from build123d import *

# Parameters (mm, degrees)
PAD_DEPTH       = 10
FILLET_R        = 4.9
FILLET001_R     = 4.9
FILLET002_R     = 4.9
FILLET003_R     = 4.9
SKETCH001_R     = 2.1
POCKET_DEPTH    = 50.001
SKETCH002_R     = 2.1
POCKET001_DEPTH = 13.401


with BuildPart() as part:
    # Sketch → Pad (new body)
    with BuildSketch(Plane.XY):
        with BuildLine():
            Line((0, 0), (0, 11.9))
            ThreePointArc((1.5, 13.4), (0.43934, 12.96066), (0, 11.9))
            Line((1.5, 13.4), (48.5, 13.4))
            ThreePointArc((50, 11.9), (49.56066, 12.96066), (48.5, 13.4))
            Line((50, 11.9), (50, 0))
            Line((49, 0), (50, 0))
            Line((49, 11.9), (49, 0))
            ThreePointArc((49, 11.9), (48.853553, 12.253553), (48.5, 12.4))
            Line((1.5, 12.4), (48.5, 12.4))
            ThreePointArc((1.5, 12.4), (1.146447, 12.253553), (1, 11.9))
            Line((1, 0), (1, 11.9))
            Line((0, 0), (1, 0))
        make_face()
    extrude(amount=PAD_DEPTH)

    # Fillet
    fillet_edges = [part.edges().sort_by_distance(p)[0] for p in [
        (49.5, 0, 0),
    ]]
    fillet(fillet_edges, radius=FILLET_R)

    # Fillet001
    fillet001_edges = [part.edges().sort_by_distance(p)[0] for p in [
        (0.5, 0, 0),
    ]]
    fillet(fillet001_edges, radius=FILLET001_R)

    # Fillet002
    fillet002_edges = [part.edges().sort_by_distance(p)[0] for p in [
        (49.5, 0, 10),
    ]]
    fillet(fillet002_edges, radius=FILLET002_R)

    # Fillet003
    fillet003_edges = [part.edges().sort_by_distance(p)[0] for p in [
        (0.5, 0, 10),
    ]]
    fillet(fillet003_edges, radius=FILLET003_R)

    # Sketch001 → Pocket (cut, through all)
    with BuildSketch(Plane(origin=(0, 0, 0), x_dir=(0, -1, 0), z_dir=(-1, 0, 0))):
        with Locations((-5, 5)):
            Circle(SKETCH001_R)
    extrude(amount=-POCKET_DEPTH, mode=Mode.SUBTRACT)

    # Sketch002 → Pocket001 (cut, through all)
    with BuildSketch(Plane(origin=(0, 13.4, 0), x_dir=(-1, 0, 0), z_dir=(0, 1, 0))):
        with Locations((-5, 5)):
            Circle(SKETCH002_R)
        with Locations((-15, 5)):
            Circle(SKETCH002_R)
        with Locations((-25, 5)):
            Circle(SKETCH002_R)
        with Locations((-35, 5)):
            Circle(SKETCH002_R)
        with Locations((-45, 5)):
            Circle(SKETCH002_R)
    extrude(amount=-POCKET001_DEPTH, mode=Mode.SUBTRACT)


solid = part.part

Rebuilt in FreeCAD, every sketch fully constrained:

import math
import FreeCAD as App
import Part
import Sketcher


def edges_at(feature, points):
    """Names of the edges that pass closest to the given points."""
    edges = feature.Shape.Edges
    near = lambda p: min(range(len(edges)), key=lambda i: edges[i].distToShape(Part.Vertex(*p))[0])
    return sorted({f"Edge{near(p) + 1}" for p in points})

doc = App.newDocument("Part")
body = doc.addObject("PartDesign::Body", "Body")

# Sketch on XY plane
sketch1 = doc.addObject("Sketcher::SketchObject", "Sketch")
body.addObject(sketch1)
sketch1.AttachmentSupport = (doc.XY_Plane, [""])
sketch1.MapMode = "FlatFace"
sketch1.addGeometry(Part.LineSegment(App.Vector(0, 11.9, 0), App.Vector(0, 0, 0)), False)
sketch1.addGeometry(Part.LineSegment(App.Vector(0, 0, 0), App.Vector(1, 0, 0)), False)
sketch1.addGeometry(Part.LineSegment(App.Vector(1, 0, 0), App.Vector(1, 11.9, 0)), False)
sketch1.addGeometry(Part.ArcOfCircle(Part.Circle(App.Vector(1.5, 11.9, 0), App.Vector(0, 0, 1), 0.5), math.radians(90), math.radians(180)), False)
sketch1.addGeometry(Part.LineSegment(App.Vector(1.5, 12.4, 0), App.Vector(48.5, 12.4, 0)), False)
sketch1.addGeometry(Part.ArcOfCircle(Part.Circle(App.Vector(48.5, 11.9, 0), App.Vector(0, 0, 1), 0.5), math.radians(0), math.radians(90)), False)
sketch1.addGeometry(Part.LineSegment(App.Vector(49, 11.9, 0), App.Vector(49, 0, 0)), False)
sketch1.addGeometry(Part.LineSegment(App.Vector(49, 0, 0), App.Vector(50, 0, 0)), False)
sketch1.addGeometry(Part.LineSegment(App.Vector(50, 0, 0), App.Vector(50, 11.9, 0)), False)
sketch1.addGeometry(Part.ArcOfCircle(Part.Circle(App.Vector(48.5, 11.9, 0), App.Vector(0, 0, 1), 1.5), math.radians(0), math.radians(90)), False)
sketch1.addGeometry(Part.LineSegment(App.Vector(48.5, 13.4, 0), App.Vector(1.5, 13.4, 0)), False)
sketch1.addGeometry(Part.ArcOfCircle(Part.Circle(App.Vector(1.5, 11.9, 0), App.Vector(0, 0, 1), 1.5), math.radians(90), math.radians(180)), False)
sketch1.addConstraint(Sketcher.Constraint("Coincident", 0, 2, 1, 1))
sketch1.addConstraint(Sketcher.Constraint("Coincident", 1, 2, 2, 1))
sketch1.addConstraint(Sketcher.Constraint("Coincident", 2, 2, 3, 2))
sketch1.addConstraint(Sketcher.Constraint("Coincident", 3, 1, 4, 1))
sketch1.addConstraint(Sketcher.Constraint("Coincident", 4, 2, 5, 2))
sketch1.addConstraint(Sketcher.Constraint("Coincident", 5, 1, 6, 1))
sketch1.addConstraint(Sketcher.Constraint("Coincident", 6, 2, 7, 1))
sketch1.addConstraint(Sketcher.Constraint("Coincident", 7, 2, 8, 1))
sketch1.addConstraint(Sketcher.Constraint("Tangent", 8, 2, 9, 1))
sketch1.addConstraint(Sketcher.Constraint("Tangent", 9, 2, 10, 1))
sketch1.addConstraint(Sketcher.Constraint("Tangent", 10, 2, 11, 1))
sketch1.addConstraint(Sketcher.Constraint("Tangent", 11, 2, 0, 1))
sketch1.addConstraint(Sketcher.Constraint("Vertical", 0))
sketch1.addConstraint(Sketcher.Constraint("Horizontal", 1))
sketch1.addConstraint(Sketcher.Constraint("Vertical", 2))
sketch1.addConstraint(Sketcher.Constraint("Horizontal", 4))
sketch1.addConstraint(Sketcher.Constraint("Vertical", 6))
sketch1.addConstraint(Sketcher.Constraint("Horizontal", 7))
sketch1.addConstraint(Sketcher.Constraint("Vertical", 8))
sketch1.addConstraint(Sketcher.Constraint("Horizontal", 10))
sketch1.addConstraint(Sketcher.Constraint("Coincident", 0, 2, -1, 1))
sketch1.addConstraint(Sketcher.Constraint("Coincident", 9, 3, 5, 3))
sketch1.addConstraint(Sketcher.Constraint("Coincident", 11, 3, 3, 3))
sketch1.addConstraint(Sketcher.Constraint("Equal", 3, 5))
sketch1.addConstraint(Sketcher.Constraint("PointOnObject", 6, 2, -1))
sketch1.addConstraint(Sketcher.Constraint("Horizontal", 11, 3, 2, 2))
sketch1.addConstraint(Sketcher.Constraint("Horizontal", 2, 2, 5, 1))
sketch1.addConstraint(Sketcher.Constraint("Vertical", 11, 3, 3, 1))
sketch1.addConstraint(Sketcher.Constraint("Vertical", 9, 3, 4, 2))
sketch1.addConstraint(Sketcher.Constraint("Radius", 3, 0.500001))
sketch1.addConstraint(Sketcher.Constraint("Radius", 9, 1.500001))
sketch1.addConstraint(Sketcher.Constraint("DistanceX", 4, 1, 4, 2, 47.0))
sketch1.addConstraint(Sketcher.Constraint("DistanceY", 0, 2, 0, 1, 11.9))
pad1 = doc.addObject("PartDesign::Pad", "Pad")
body.addObject(pad1)
pad1.Profile = sketch1
pad1.Length = 10
doc.recompute()

fillet = doc.addObject("PartDesign::Fillet", "Fillet")
body.addObject(fillet)
fillet.Base = (pad1, edges_at(pad1, [(49.5, 0, 0)]))
fillet.Radius = 4.9
doc.recompute()

fillet2 = doc.addObject("PartDesign::Fillet", "Fillet001")
body.addObject(fillet2)
fillet2.Base = (fillet, edges_at(fillet, [(0.5, 0, 0)]))
fillet2.Radius = 4.9
doc.recompute()

fillet3 = doc.addObject("PartDesign::Fillet", "Fillet002")
body.addObject(fillet3)
fillet3.Base = (fillet2, edges_at(fillet2, [(49.5, 0, 10)]))
fillet3.Radius = 4.9
doc.recompute()

fillet4 = doc.addObject("PartDesign::Fillet", "Fillet003")
body.addObject(fillet4)
fillet4.Base = (fillet3, edges_at(fillet3, [(0.5, 0, 10)]))
fillet4.Radius = 4.9

# Sketch on YZ plane
sketch2 = doc.addObject("Sketcher::SketchObject", "Sketch001")
body.addObject(sketch2)
sketch2.AttachmentSupport = (doc.YZ_Plane, [""])
sketch2.MapMode = "FlatFace"
sketch2.addGeometry(Part.Circle(App.Vector(5, 5, 0), App.Vector(0, 0, 1), 2.1), False)
sketch2.addConstraint(Sketcher.Constraint("Diameter", 0, 4.2))
sketch2.addConstraint(Sketcher.Constraint("DistanceX", -1, 1, 0, 3, 5.0))
sketch2.addConstraint(Sketcher.Constraint("DistanceY", -1, 1, 0, 3, 5.0))
pocket1 = doc.addObject("PartDesign::Pocket", "Pocket")
body.addObject(pocket1)
pocket1.Profile = sketch2
pocket1.Type = "ThroughAll"
pocket1.Reversed = True

# Sketch on XZ plane
sketch3 = doc.addObject("Sketcher::SketchObject", "Sketch002")
body.addObject(sketch3)
sketch3.AttachmentSupport = (doc.XZ_Plane, [""])
sketch3.MapMode = "FlatFace"
sketch3.AttachmentOffset = App.Placement(App.Vector(0, 0, -13.4), App.Rotation())
sketch3.addGeometry(Part.Circle(App.Vector(5, 5, 0), App.Vector(0, 0, 1), 2.1), False)
sketch3.addGeometry(Part.Circle(App.Vector(15, 5, 0), App.Vector(0, 0, 1), 2.1), False)
sketch3.addGeometry(Part.Circle(App.Vector(25, 5, 0), App.Vector(0, 0, 1), 2.1), False)
sketch3.addGeometry(Part.Circle(App.Vector(35, 5, 0), App.Vector(0, 0, 1), 2.1), False)
sketch3.addGeometry(Part.Circle(App.Vector(45, 5, 0), App.Vector(0, 0, 1), 2.1), False)
sketch3.addConstraint(Sketcher.Constraint("Equal", 0, 1))
sketch3.addConstraint(Sketcher.Constraint("Equal", 1, 2))
sketch3.addConstraint(Sketcher.Constraint("Equal", 2, 3))
sketch3.addConstraint(Sketcher.Constraint("Equal", 3, 4))
sketch3.addConstraint(Sketcher.Constraint("Horizontal", 0, 3, 1, 3))
sketch3.addConstraint(Sketcher.Constraint("Horizontal", 1, 3, 2, 3))
sketch3.addConstraint(Sketcher.Constraint("Horizontal", 2, 3, 3, 3))
sketch3.addConstraint(Sketcher.Constraint("Horizontal", 3, 3, 4, 3))
sketch3.addConstraint(Sketcher.Constraint("Diameter", 0, 4.2))
sketch3.addConstraint(Sketcher.Constraint("DistanceX", -1, 1, 0, 3, 5.0))
sketch3.addConstraint(Sketcher.Constraint("DistanceY", -1, 1, 0, 3, 5.0))
sketch3.addConstraint(Sketcher.Constraint("DistanceX", -1, 1, 1, 3, 15.0))
sketch3.addConstraint(Sketcher.Constraint("DistanceX", -1, 1, 2, 3, 25.0))
sketch3.addConstraint(Sketcher.Constraint("DistanceX", -1, 1, 3, 3, 35.0))
sketch3.addConstraint(Sketcher.Constraint("DistanceX", -1, 1, 4, 3, 45.0))
pocket2 = doc.addObject("PartDesign::Pocket", "Pocket001")
body.addObject(pocket2)
pocket2.Profile = sketch3
pocket2.Type = "ThroughAll"
pocket2.Reversed = True

doc.recompute()
